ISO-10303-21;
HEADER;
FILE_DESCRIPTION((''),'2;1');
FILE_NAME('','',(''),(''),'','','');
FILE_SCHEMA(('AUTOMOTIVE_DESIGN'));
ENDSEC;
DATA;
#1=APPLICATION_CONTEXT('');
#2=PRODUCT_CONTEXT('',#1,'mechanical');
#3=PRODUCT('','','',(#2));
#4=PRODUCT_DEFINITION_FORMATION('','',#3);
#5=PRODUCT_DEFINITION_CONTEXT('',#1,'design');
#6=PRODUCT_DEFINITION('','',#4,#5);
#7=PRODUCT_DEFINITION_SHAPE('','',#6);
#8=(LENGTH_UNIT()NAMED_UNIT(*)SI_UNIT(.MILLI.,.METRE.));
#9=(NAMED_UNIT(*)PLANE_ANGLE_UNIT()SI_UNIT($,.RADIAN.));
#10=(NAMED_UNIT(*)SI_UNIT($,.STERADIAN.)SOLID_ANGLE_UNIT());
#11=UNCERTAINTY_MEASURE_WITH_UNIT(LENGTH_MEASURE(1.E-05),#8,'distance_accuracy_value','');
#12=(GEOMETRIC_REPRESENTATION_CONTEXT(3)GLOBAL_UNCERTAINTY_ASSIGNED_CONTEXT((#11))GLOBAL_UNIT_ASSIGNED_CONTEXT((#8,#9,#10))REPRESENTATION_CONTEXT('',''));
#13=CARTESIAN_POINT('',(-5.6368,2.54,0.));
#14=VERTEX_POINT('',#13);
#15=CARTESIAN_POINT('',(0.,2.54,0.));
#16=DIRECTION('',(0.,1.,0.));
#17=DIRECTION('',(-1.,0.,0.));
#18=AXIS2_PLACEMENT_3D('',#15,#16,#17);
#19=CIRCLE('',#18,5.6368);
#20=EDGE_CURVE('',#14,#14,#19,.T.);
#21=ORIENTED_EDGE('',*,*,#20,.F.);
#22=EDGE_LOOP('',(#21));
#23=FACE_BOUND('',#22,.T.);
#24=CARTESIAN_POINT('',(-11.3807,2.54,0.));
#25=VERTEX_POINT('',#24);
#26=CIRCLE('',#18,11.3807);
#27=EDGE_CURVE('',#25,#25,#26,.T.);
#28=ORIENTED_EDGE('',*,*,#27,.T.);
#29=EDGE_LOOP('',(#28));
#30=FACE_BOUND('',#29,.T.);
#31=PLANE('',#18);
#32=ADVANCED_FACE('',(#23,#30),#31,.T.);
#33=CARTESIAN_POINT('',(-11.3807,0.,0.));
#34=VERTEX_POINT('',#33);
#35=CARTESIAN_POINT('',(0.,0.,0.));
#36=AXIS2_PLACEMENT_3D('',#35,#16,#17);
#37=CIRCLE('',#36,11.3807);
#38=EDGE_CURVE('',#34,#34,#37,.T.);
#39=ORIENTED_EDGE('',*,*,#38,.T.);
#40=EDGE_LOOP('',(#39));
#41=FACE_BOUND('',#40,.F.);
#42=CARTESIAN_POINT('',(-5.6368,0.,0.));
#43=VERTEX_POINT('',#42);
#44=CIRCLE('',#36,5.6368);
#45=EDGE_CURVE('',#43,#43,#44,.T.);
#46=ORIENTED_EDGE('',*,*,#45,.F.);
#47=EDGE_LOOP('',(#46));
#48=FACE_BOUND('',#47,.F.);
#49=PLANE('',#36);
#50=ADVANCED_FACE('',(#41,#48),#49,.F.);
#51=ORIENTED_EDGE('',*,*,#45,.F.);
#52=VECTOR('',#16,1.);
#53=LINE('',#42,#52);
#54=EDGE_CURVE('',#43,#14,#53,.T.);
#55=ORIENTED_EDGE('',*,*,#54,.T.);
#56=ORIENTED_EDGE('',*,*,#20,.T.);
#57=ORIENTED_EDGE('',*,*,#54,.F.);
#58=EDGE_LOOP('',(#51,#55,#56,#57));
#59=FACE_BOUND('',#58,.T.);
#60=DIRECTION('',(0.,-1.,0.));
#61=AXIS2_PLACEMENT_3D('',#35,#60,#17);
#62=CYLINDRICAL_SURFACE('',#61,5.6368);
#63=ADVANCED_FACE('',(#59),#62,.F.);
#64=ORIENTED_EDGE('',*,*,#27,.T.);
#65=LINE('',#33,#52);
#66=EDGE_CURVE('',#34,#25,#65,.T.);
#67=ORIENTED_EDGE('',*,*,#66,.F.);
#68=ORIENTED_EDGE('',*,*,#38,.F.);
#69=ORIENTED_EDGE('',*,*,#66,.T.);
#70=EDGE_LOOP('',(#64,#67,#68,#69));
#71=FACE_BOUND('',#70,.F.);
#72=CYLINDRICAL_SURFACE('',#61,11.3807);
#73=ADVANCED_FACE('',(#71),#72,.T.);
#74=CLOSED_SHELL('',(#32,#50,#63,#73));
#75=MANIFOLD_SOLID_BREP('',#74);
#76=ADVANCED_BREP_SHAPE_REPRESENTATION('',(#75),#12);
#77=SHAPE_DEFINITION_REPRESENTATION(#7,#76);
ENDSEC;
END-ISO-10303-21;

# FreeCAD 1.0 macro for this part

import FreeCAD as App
import Part
import Sketcher
from FreeCAD import Vector
Q = App.Units.Quantity

doc = App.newDocument("Part")
body = doc.addObject("PartDesign::Body", "Body")

# Sketch on XZ plane
sketch1 = body.newObject("Sketcher::SketchObject", "Sketch")
sketch1.AttachmentSupport = (doc.getObject("XZ_Plane"), [""])
sketch1.MapMode = "FlatFace"
sketch1.addGeometry(Part.Circle(Vector(0, 0, 0), Vector(0, 0, 1), 11), False)
sketch1.addGeometry(Part.Circle(Vector(0, 0, 0), Vector(0, 0, 1), 6), False)
sketch1.addConstraint(Sketcher.Constraint("Coincident", 0, 3, -1, 1))
sketch1.addConstraint(Sketcher.Constraint("Coincident", 1, 3, -1, 1))
sketch1.addConstraint(Sketcher.Constraint("Diameter", 0, Q("22.7614 mm")))
sketch1.addConstraint(Sketcher.Constraint("Diameter", 1, Q("11.2736 mm")))
pad1 = body.newObject("PartDesign::Pad", "Pad")
pad1.Profile = sketch1
pad1.Length = Q("0.1 in")
pad1.Reversed = True

doc.recompute()
